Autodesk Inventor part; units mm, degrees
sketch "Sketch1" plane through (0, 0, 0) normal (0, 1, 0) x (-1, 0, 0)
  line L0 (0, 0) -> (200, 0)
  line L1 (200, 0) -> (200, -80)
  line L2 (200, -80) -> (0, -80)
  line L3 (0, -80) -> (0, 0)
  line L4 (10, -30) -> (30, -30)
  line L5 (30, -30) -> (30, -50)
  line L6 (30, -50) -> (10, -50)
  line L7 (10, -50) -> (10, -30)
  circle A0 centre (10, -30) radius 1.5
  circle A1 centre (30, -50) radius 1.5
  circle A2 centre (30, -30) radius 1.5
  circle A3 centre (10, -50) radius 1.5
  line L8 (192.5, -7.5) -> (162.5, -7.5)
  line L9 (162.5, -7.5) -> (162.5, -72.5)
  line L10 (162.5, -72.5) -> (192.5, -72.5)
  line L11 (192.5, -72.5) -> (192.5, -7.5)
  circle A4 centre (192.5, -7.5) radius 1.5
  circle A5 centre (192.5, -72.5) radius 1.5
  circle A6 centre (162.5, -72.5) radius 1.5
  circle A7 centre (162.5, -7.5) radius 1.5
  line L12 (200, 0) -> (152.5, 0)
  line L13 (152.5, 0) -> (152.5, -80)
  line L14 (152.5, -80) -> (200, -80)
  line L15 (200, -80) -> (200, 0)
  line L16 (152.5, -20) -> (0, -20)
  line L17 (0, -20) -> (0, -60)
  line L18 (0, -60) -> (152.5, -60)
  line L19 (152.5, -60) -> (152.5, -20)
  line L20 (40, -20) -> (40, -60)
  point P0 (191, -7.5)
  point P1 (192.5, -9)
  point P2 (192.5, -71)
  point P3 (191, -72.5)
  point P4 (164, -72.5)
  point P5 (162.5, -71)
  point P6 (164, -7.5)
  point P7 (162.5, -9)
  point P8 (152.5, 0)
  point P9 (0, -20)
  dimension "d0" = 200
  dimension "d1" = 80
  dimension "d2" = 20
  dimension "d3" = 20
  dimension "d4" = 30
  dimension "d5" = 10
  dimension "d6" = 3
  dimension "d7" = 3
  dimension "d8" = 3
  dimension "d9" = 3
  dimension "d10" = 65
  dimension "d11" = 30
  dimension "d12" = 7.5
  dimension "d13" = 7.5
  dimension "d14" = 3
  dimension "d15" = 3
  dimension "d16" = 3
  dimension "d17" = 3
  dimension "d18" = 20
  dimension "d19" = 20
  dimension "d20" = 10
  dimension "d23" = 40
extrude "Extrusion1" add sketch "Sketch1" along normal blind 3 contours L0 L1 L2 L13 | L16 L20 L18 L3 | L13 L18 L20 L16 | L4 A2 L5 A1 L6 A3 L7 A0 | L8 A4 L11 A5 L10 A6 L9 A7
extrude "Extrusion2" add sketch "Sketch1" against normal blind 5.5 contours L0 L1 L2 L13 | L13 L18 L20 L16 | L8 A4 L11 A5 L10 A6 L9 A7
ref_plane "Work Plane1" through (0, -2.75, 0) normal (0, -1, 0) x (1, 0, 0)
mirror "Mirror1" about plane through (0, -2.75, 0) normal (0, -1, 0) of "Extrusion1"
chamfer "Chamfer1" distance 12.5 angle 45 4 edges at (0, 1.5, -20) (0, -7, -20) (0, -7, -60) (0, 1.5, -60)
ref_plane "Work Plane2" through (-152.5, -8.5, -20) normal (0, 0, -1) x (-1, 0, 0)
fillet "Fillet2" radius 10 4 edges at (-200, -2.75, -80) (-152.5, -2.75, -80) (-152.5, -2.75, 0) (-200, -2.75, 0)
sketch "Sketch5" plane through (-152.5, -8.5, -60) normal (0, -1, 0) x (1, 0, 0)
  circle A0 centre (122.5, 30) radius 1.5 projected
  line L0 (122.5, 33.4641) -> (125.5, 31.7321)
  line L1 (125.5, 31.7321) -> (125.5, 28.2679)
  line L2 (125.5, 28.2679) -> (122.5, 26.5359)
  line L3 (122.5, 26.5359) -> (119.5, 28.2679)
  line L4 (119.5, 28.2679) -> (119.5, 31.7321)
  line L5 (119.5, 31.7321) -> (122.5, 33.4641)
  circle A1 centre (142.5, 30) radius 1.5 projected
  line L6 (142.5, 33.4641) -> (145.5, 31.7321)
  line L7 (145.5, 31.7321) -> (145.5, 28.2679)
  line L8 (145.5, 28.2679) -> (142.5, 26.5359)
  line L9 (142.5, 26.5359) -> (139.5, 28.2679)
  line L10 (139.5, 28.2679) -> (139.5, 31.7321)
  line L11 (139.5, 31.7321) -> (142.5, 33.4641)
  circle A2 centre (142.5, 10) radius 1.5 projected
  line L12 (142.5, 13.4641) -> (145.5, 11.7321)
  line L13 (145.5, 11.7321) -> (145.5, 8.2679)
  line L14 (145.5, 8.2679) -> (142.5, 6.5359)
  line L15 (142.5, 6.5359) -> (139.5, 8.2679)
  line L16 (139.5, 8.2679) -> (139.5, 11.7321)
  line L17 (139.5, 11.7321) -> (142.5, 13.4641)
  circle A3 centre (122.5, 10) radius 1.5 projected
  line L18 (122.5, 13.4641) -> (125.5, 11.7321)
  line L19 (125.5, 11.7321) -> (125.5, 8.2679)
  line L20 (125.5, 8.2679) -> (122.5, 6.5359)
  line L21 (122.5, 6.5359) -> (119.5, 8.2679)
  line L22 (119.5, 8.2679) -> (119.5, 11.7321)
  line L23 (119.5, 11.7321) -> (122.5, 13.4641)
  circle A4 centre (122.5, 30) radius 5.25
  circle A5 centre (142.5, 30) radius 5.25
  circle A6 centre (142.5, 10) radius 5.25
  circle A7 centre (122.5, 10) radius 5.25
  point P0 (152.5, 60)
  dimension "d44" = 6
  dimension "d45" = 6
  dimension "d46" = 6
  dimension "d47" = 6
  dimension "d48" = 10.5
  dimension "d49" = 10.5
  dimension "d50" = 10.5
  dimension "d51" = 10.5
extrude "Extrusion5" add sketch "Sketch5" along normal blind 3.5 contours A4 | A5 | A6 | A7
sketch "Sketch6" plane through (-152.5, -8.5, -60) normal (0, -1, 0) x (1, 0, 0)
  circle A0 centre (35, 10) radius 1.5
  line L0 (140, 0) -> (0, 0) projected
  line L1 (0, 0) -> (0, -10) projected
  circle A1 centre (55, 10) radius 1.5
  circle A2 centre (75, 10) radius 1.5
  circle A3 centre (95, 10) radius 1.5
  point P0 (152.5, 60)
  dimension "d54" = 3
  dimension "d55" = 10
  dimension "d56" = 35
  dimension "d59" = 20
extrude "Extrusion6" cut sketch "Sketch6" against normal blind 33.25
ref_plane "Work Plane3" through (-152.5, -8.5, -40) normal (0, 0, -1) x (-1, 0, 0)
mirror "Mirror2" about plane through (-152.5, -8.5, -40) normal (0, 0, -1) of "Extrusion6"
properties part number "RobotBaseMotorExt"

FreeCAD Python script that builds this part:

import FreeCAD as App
import Part
import Sketcher
from FreeCAD import Vector
Q = App.Units.Quantity


def edges_at(feature, points):
    """Names of the edges that pass closest to the given points."""
    edges = feature.Shape.Edges
    near = lambda p: min(range(len(edges)), key=lambda i: edges[i].distToShape(Part.Vertex(*p))[0])
    return sorted({f"Edge{near(p) + 1}" for p in points})

doc = App.newDocument("Part")
body = doc.addObject("PartDesign::Body", "Body")

sketch1 = body.newObject("Sketcher::SketchObject", "Sketch")
sketch1.AttachmentSupport = (doc.getObject("XZ_Plane"), [""])
sketch1.MapMode = "FlatFace"
sketch1.addGeometry([
    Part.LineSegment(Vector(-200, 0, 0), Vector(-152.5, 0, 0)),
    Part.LineSegment(Vector(-152.5, 0, 0), Vector(-152.5, -20, 0)),
    Part.LineSegment(Vector(-152.5, -20, 0), Vector(0, -20, 0)),
    Part.LineSegment(Vector(0, -20, 0), Vector(0, -60, 0)),
    Part.LineSegment(Vector(0, -60, 0), Vector(-152.5, -60, 0)),
    Part.LineSegment(Vector(-152.5, -60, 0), Vector(-152.5, -80, 0)),
    Part.LineSegment(Vector(-152.5, -80, 0), Vector(-200, -80, 0)),
    Part.LineSegment(Vector(-200, -80, 0), Vector(-200, 0, 0)),
    Part.Circle(Vector(-162.5, -7.5, 0), Vector(0, 0, 1), 1.5),
    Part.Circle(Vector(-162.5, -72.5, 0), Vector(0, 0, 1), 1.5),
    Part.Circle(Vector(-192.5, -72.5, 0), Vector(0, 0, 1), 1.5),
    Part.Circle(Vector(-192.5, -7.5, 0), Vector(0, 0, 1), 1.5),
    Part.Circle(Vector(-10, -30, 0), Vector(0, 0, 1), 1.5),
    Part.Circle(Vector(-10, -50, 0), Vector(0, 0, 1), 1.5),
    Part.Circle(Vector(-30, -50, 0), Vector(0, 0, 1), 1.5),
    Part.Circle(Vector(-30, -30, 0), Vector(0, 0, 1), 1.5),
], False)
sketch1.addConstraint([
    Sketcher.Constraint("Coincident", 0, 2, 1, 1),
    Sketcher.Constraint("Coincident", 1, 2, 2, 1),
    Sketcher.Constraint("Coincident", 2, 2, 3, 1),
    Sketcher.Constraint("Coincident", 3, 2, 4, 1),
    Sketcher.Constraint("Coincident", 4, 2, 5, 1),
    Sketcher.Constraint("Coincident", 5, 2, 6, 1),
    Sketcher.Constraint("Coincident", 6, 2, 7, 1),
    Sketcher.Constraint("Coincident", 7, 2, 0, 1),
    Sketcher.Constraint("Horizontal", 0),
    Sketcher.Constraint("Vertical", 1),
    Sketcher.Constraint("Horizontal", 2),
    Sketcher.Constraint("Vertical", 3),
    Sketcher.Constraint("Horizontal", 4),
    Sketcher.Constraint("Vertical", 5),
    Sketcher.Constraint("Horizontal", 6),
    Sketcher.Constraint("Vertical", 7),
    Sketcher.Constraint("Equal", 8, 9),
    Sketcher.Constraint("Equal", 9, 10),
    Sketcher.Constraint("Equal", 10, 11),
    Sketcher.Constraint("Equal", 11, 12),
    Sketcher.Constraint("Equal", 12, 13),
    Sketcher.Constraint("Equal", 13, 14),
    Sketcher.Constraint("Equal", 14, 15),
    Sketcher.Constraint("PointOnObject", 0, 2, -1),
    Sketcher.Constraint("PointOnObject", 2, 2, -2),
    Sketcher.Constraint("Horizontal", 9, 3, 10, 3),
    Sketcher.Constraint("Horizontal", 8, 3, 11, 3),
    Sketcher.Constraint("Horizontal", 13, 3, 14, 3),
    Sketcher.Constraint("Horizontal", 12, 3, 15, 3),
    Sketcher.Constraint("Vertical", 8, 3, 9, 3),
    Sketcher.Constraint("Vertical", 10, 3, 11, 3),
    Sketcher.Constraint("Vertical", 12, 3, 13, 3),
    Sketcher.Constraint("Vertical", 14, 3, 15, 3),
    Sketcher.Constraint("Vertical", 1, 2, 4, 2),
    Sketcher.Constraint("Equal", 1, 5),
    Sketcher.Constraint("Diameter", 8, 3.0),
    Sketcher.Constraint("DistanceY", 1, 2, 1, 1, 20.0),
    Sketcher.Constraint("DistanceY", 3, 2, 3, 1, 40.0),
    Sketcher.Constraint("DistanceX", 12, 3, -1, 1, 10.0),
    Sketcher.Constraint("DistanceY", 12, 3, -1, 1, 30.0),
    Sketcher.Constraint("DistanceX", 14, 3, -1, 1, 30.0),
    Sketcher.Constraint("DistanceX", 6, 2, -1, 1, 200.0),
    Sketcher.Constraint("DistanceY", 9, 3, 8, 3, 65.0),
    Sketcher.Constraint("DistanceX", 10, 3, 9, 3, 30.0),
    Sketcher.Constraint("DistanceY", 13, 3, 12, 3, 20.0),
    Sketcher.Constraint("DistanceX", 8, 3, 0, 2, 10.0),
    Sketcher.Constraint("DistanceY", 8, 3, -1, 1, 7.5),
    Sketcher.Constraint("DistanceX", 6, 2, 10, 3, 7.5),
])
pad1 = body.newObject("PartDesign::Pad", "Pad")
pad1.Profile = sketch1
pad1.Length = 3
pad1.Reversed = True

sketch2 = body.newObject("Sketcher::SketchObject", "Sketch001")
sketch2.AttachmentSupport = (doc.getObject("XZ_Plane"), [""])
sketch2.MapMode = "FlatFace"
sketch2.addGeometry([
    Part.LineSegment(Vector(-200, 0, 0), Vector(-152.5, 0, 0)),
    Part.LineSegment(Vector(-152.5, 0, 0), Vector(-152.5, -20, 0)),
    Part.LineSegment(Vector(-152.5, -20, 0), Vector(-40, -20, 0)),
    Part.LineSegment(Vector(-40, -20, 0), Vector(-40, -60, 0)),
    Part.LineSegment(Vector(-40, -60, 0), Vector(-152.5, -60, 0)),
    Part.LineSegment(Vector(-152.5, -60, 0), Vector(-152.5, -80, 0)),
    Part.LineSegment(Vector(-152.5, -80, 0), Vector(-200, -80, 0)),
    Part.LineSegment(Vector(-200, -80, 0), Vector(-200, 0, 0)),
    Part.Circle(Vector(-162.5, -7.5, 0), Vector(0, 0, 1), 1.5),
    Part.Circle(Vector(-162.5, -72.5, 0), Vector(0, 0, 1), 1.5),
    Part.Circle(Vector(-192.5, -72.5, 0), Vector(0, 0, 1), 1.5),
    Part.Circle(Vector(-192.5, -7.5, 0), Vector(0, 0, 1), 1.5),
], False)
sketch2.addConstraint([
    Sketcher.Constraint("Coincident", 0, 2, 1, 1),
    Sketcher.Constraint("Coincident", 1, 2, 2, 1),
    Sketcher.Constraint("Coincident", 2, 2, 3, 1),
    Sketcher.Constraint("Coincident", 3, 2, 4, 1),
    Sketcher.Constraint("Coincident", 4, 2, 5, 1),
    Sketcher.Constraint("Coincident", 5, 2, 6, 1),
    Sketcher.Constraint("Coincident", 6, 2, 7, 1),
    Sketcher.Constraint("Coincident", 7, 2, 0, 1),
    Sketcher.Constraint("Horizontal", 0),
    Sketcher.Constraint("Vertical", 1),
    Sketcher.Constraint("Horizontal", 2),
    Sketcher.Constraint("Vertical", 3),
    Sketcher.Constraint("Horizontal", 4),
    Sketcher.Constraint("Vertical", 5),
    Sketcher.Constraint("Horizontal", 6),
    Sketcher.Constraint("Vertical", 7),
    Sketcher.Constraint("Equal", 8, 9),
    Sketcher.Constraint("Equal", 9, 10),
    Sketcher.Constraint("Equal", 10, 11),
    Sketcher.Constraint("PointOnObject", 0, 2, -1),
    Sketcher.Constraint("Horizontal", 9, 3, 10, 3),
    Sketcher.Constraint("Horizontal", 8, 3, 11, 3),
    Sketcher.Constraint("Vertical", 8, 3, 9, 3),
    Sketcher.Constraint("Vertical", 10, 3, 11, 3),
    Sketcher.Constraint("Vertical", 1, 2, 4, 2),
    Sketcher.Constraint("Equal", 1, 5),
    Sketcher.Constraint("Diameter", 8, 3.0),
    Sketcher.Constraint("DistanceY", 1, 2, 1, 1, 20.0),
    Sketcher.Constraint("DistanceY", 3, 2, 3, 1, 40.0),
    Sketcher.Constraint("DistanceX", 2, 2, -1, 1, 40.0),
    Sketcher.Constraint("DistanceX", 6, 2, -1, 1, 200.0),
    Sketcher.Constraint("DistanceY", 9, 3, 8, 3, 65.0),
    Sketcher.Constraint("DistanceX", 10, 3, 9, 3, 30.0),
    Sketcher.Constraint("DistanceX", 8, 3, 0, 2, 10.0),
    Sketcher.Constraint("DistanceY", 8, 3, -1, 1, 7.5),
    Sketcher.Constraint("DistanceX", 6, 2, 10, 3, 7.5),
])
pad2 = body.newObject("PartDesign::Pad", "Pad001")
pad2.Profile = sketch2
pad2.Length = 5.5
doc.recompute()

datumplane = body.newObject("PartDesign::Plane", "DatumPlane")
datumplane.AttachmentSupport = (doc.getObject("XZ_Plane"), [""])
datumplane.MapMode = "FlatFace"
datumplane.AttachmentOffset = App.Placement(Vector(0, 0, 2.75), App.Rotation())
mirrored = body.newObject("PartDesign::Mirrored", "Mirrored")
mirrored.Originals = [pad1]
mirrored.MirrorPlane = (datumplane, [""])
body.Tip = mirrored
doc.recompute()

chamfer = body.newObject("PartDesign::Chamfer", "Chamfer")
chamfer.Base = (mirrored, edges_at(mirrored, [
    (0, 1.5, -20),
    (0, -7, -20),
    (0, -7, -60),
    (0, 1.5, -60),
]))
chamfer.Size = 12.5
doc.recompute()

fillet = body.newObject("PartDesign::Fillet", "Fillet")
fillet.Base = (chamfer, edges_at(chamfer, [
    (-200, -2.75, -80),
    (-152.5, -2.75, -80),
    (-152.5, -2.75, 0),
    (-200, -2.75, 0),
]))
fillet.Radius = 10

sketch3 = body.newObject("Sketcher::SketchObject", "Sketch002")
sketch3.AttachmentSupport = (doc.getObject("XZ_Plane"), [""])
sketch3.MapMode = "FlatFace"
sketch3.AttachmentOffset = App.Placement(Vector(0, 0, 8.5), App.Rotation())
sketch3.addGeometry([
    Part.Circle(Vector(-30, -30, 0), Vector(0, 0, 1), 5.2),
    Part.LineSegment(Vector(-33, -28.3, 0), Vector(-30, -26.5, 0)),
    Part.LineSegment(Vector(-30, -26.5, 0), Vector(-27, -28.3, 0)),
    Part.LineSegment(Vector(-27, -28.3, 0), Vector(-27, -31.7, 0)),
    Part.LineSegment(Vector(-27, -31.7, 0), Vector(-30, -33.5, 0)),
    Part.LineSegment(Vector(-30, -33.5, 0), Vector(-33, -31.7, 0)),
    Part.LineSegment(Vector(-33, -31.7, 0), Vector(-33, -28.3, 0)),
    Part.Circle(Vector(-10, -30, 0), Vector(0, 0, 1), 5.2),
    Part.LineSegment(Vector(-13, -28.3, 0), Vector(-10, -26.5, 0)),
    Part.LineSegment(Vector(-10, -26.5, 0), Vector(-7, -28.3, 0)),
    Part.LineSegment(Vector(-7, -28.3, 0), Vector(-7, -31.7, 0)),
    Part.LineSegment(Vector(-7, -31.7, 0), Vector(-10, -33.5, 0)),
    Part.LineSegment(Vector(-10, -33.5, 0), Vector(-13, -31.7, 0)),
    Part.LineSegment(Vector(-13, -31.7, 0), Vector(-13, -28.3, 0)),
    Part.Circle(Vector(-10, -50, 0), Vector(0, 0, 1), 5.2),
    Part.LineSegment(Vector(-13, -48.3, 0), Vector(-10, -46.5, 0)),
    Part.LineSegment(Vector(-10, -46.5, 0), Vector(-7, -48.3, 0)),
    Part.LineSegment(Vector(-7, -48.3, 0), Vector(-7, -51.7, 0)),
    Part.LineSegment(Vector(-7, -51.7, 0), Vector(-10, -53.5, 0)),
    Part.LineSegment(Vector(-10, -53.5, 0), Vector(-13, -51.7, 0)),
    Part.LineSegment(Vector(-13, -51.7, 0), Vector(-13, -48.3, 0)),
    Part.Circle(Vector(-30, -50, 0), Vector(0, 0, 1), 5.2),
    Part.LineSegment(Vector(-33, -48.3, 0), Vector(-30, -46.5, 0)),
    Part.LineSegment(Vector(-30, -46.5, 0), Vector(-27, -48.3, 0)),
    Part.LineSegment(Vector(-27, -48.3, 0), Vector(-27, -51.7, 0)),
    Part.LineSegment(Vector(-27, -51.7, 0), Vector(-30, -53.5, 0)),
    Part.LineSegment(Vector(-30, -53.5, 0), Vector(-33, -51.7, 0)),
    Part.LineSegment(Vector(-33, -51.7, 0), Vector(-33, -48.3, 0)),
], False)
sketch3.addConstraint([
    Sketcher.Constraint("Coincident", 1, 2, 2, 1),
    Sketcher.Constraint("Coincident", 2, 2, 3, 1),
    Sketcher.Constraint("Coincident", 3, 2, 4, 1),
    Sketcher.Constraint("Coincident", 4, 2, 5, 1),
    Sketcher.Constraint("Coincident", 5, 2, 6, 1),
    Sketcher.Constraint("Coincident", 6, 2, 1, 1),
    Sketcher.Constraint("Coincident", 8, 2, 9, 1),
    Sketcher.Constraint("Coincident", 9, 2, 10, 1),
    Sketcher.Constraint("Coincident", 10, 2, 11, 1),
    Sketcher.Constraint("Coincident", 11, 2, 12, 1),
    Sketcher.Constraint("Coincident", 12, 2, 13, 1),
    Sketcher.Constraint("Coincident", 13, 2, 8, 1),
    Sketcher.Constraint("Coincident", 15, 2, 16, 1),
    Sketcher.Constraint("Coincident", 16, 2, 17, 1),
    Sketcher.Constraint("Coincident", 17, 2, 18, 1),
    Sketcher.Constraint("Coincident", 18, 2, 19, 1),
    Sketcher.Constraint("Coincident", 19, 2, 20, 1),
    Sketcher.Constraint("Coincident", 20, 2, 15, 1),
    Sketcher.Constraint("Coincident", 22, 2, 23, 1),
    Sketcher.Constraint("Coincident", 23, 2, 24, 1),
    Sketcher.Constraint("Coincident", 24, 2, 25, 1),
    Sketcher.Constraint("Coincident", 25, 2, 26, 1),
    Sketcher.Constraint("Coincident", 26, 2, 27, 1),
    Sketcher.Constraint("Coincident", 27, 2, 22, 1),
    Sketcher.Constraint("Vertical", 3),
    Sketcher.Constraint("Vertical", 6),
    Sketcher.Constraint("Vertical", 10),
    Sketcher.Constraint("Vertical", 13),
    Sketcher.Constraint("Vertical", 17),
    Sketcher.Constraint("Vertical", 20),
    Sketcher.Constraint("Vertical", 24),
    Sketcher.Constraint("Vertical", 27),
    Sketcher.Constraint("Equal", 0, 7),
    Sketcher.Constraint("Equal", 7, 14),
    Sketcher.Constraint("Equal", 14, 21),
    Sketcher.Constraint("Parallel", 1, 4),
    Sketcher.Constraint("Parallel", 2, 5),
    Sketcher.Constraint("Parallel", 4, 8),
    Sketcher.Constraint("Parallel", 5, 9),
    Sketcher.Constraint("Parallel", 8, 11),
    Sketcher.Constraint("Parallel", 9, 12),
    Sketcher.Constraint("Parallel", 11, 15),
    Sketcher.Constraint("Parallel", 12, 16),
    Sketcher.Constraint("Parallel", 15, 18),
    Sketcher.Constraint("Parallel", 16, 19),
    Sketcher.Constraint("Parallel", 18, 22),
    Sketcher.Constraint("Parallel", 19, 23),
    Sketcher.Constraint("Parallel", 22, 25),
    Sketcher.Constraint("Parallel", 23, 26),
    Sketcher.Constraint("Horizontal", 0, 3, 7, 3),
    Sketcher.Constraint("Horizontal", 14, 3, 21, 3),
    Sketcher.Constraint("Horizontal", 3, 2, 5, 2),
    Sketcher.Constraint("Horizontal", 2, 2, 6, 2),
    Sketcher.Constraint("Horizontal", 1, 2, 8, 2),
    Sketcher.Constraint("Horizontal", 6, 2, 9, 2),
    Sketcher.Constraint("Horizontal", 5, 2, 10, 2),
    Sketcher.Constraint("Horizontal", 4, 2, 11, 2),
    Sketcher.Constraint("Horizontal", 10, 2, 12, 2),
    Sketcher.Constraint("Horizontal", 17, 2, 19, 2),
    Sketcher.Constraint("Horizontal", 16, 2, 20, 2),
    Sketcher.Constraint("Horizontal", 15, 2, 22, 2),
    Sketcher.Constraint("Horizontal", 20, 2, 23, 2),
    Sketcher.Constraint("Horizontal", 19, 2, 24, 2),
    Sketcher.Constraint("Horizontal", 18, 2, 25, 2),
    Sketcher.Constraint("Horizontal", 24, 2, 26, 2),
    Sketcher.Constraint("Vertical", 7, 3, 14, 3),
    Sketcher.Constraint("Vertical", 0, 3, 21, 3),
    Sketcher.Constraint("Vertical", 21, 3, 1, 2),
    Sketcher.Constraint("Vertical", 1, 2, 4, 2),
    Sketcher.Constraint("Vertical", 14, 3, 8, 2),
    Sketcher.Constraint("Vertical", 11, 2, 15, 2),
    Sketcher.Constraint("Vertical", 10, 2, 16, 2),
    Sketcher.Constraint("Vertical", 4, 2, 22, 2),
    Sketcher.Constraint("Equal", 13, 17),
    Sketcher.Constraint("Diameter", 0, 10.5),
    Sketcher.Constraint("DistanceX", 5, 2, 3, 2, 6.0),
    Sketcher.Constraint("Angle", 1, Q("29.9993 deg")),
    Sketcher.Constraint("DistanceX", 0, 3, -1, 1, 30.0),
    Sketcher.Constraint("DistanceY", 0, 3, -1, 1, 30.0),
    Sketcher.Constraint("DistanceX", 7, 3, -1, 1, 10.0),
    Sketcher.Constraint("DistanceY", 14, 3, -1, 1, 50.0),
    Sketcher.Constraint("DistanceY", 17, 2, 10, 2, 20.0),
    Sketcher.Constraint("DistanceY", 3, 2, 3, 1, 3.4642),
    Sketcher.Constraint("DistanceY", 1, 2, -1, 1, 26.536),
])
pad3 = body.newObject("PartDesign::Pad", "Pad002")
pad3.Profile = sketch3
pad3.Length = 3.5

sketch4 = body.newObject("Sketcher::SketchObject", "Sketch003")
sketch4.AttachmentSupport = (doc.getObject("XZ_Plane"), [""])
sketch4.MapMode = "FlatFace"
sketch4.AttachmentOffset = App.Placement(Vector(0, 0, 8.5), App.Rotation())
sketch4.addGeometry([
    Part.Circle(Vector(-117.5, -50, 0), Vector(0, 0, 1), 1.5),
    Part.Circle(Vector(-97.5, -50, 0), Vector(0, 0, 1), 1.5),
    Part.Circle(Vector(-77.5, -50, 0), Vector(0, 0, 1), 1.5),
    Part.Circle(Vector(-57.5, -50, 0), Vector(0, 0, 1), 1.5),
], False)
sketch4.addConstraint([
    Sketcher.Constraint("Equal", 0, 1),
    Sketcher.Constraint("Equal", 1, 2),
    Sketcher.Constraint("Equal", 2, 3),
    Sketcher.Constraint("Horizontal", 0, 3, 1, 3),
    Sketcher.Constraint("Horizontal", 1, 3, 2, 3),
    Sketcher.Constraint("Horizontal", 2, 3, 3, 3),
    Sketcher.Constraint("Diameter", 0, 3.0),
    Sketcher.Constraint("DistanceX", 0, 3, 1, 3, 20.0),
    Sketcher.Constraint("DistanceX", 1, 3, 2, 3, 20.0),
    Sketcher.Constraint("DistanceX", 2, 3, 3, 3, 20.0),
    Sketcher.Constraint("DistanceY", 0, 3, -1, 1, 50.0),
    Sketcher.Constraint("DistanceX", 0, 3, -1, 1, 117.5),
])
pocket1 = body.newObject("PartDesign::Pocket", "Pocket")
pocket1.Profile = sketch4
pocket1.Length = 33.25
doc.recompute()

datumplane2 = body.newObject("PartDesign::Plane", "DatumPlane001")
datumplane2.AttachmentSupport = (doc.getObject("XY_Plane"), [""])
datumplane2.MapMode = "FlatFace"
datumplane2.AttachmentOffset = App.Placement(Vector(0, 0, -40), App.Rotation())
mirrored2 = body.newObject("PartDesign::Mirrored", "Mirrored001")
mirrored2.Originals = [pocket1]
mirrored2.MirrorPlane = (datumplane2, [""])
body.Tip = mirrored2

doc.recompute()
